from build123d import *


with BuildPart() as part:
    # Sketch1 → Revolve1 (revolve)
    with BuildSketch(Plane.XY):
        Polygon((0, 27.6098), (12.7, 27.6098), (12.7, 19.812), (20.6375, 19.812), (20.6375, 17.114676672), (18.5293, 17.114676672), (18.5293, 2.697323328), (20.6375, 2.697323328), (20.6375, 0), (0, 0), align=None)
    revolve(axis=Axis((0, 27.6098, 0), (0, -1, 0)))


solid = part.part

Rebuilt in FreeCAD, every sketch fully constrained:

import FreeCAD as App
import Part
import Sketcher
from FreeCAD import Vector
Q = App.Units.Quantity

doc = App.newDocument("Part")
body = doc.addObject("PartDesign::Body", "Body")

# Sketch on XY plane
sketch1 = body.newObject("Sketcher::SketchObject", "Sketch")
sketch1.AttachmentSupport = (doc.getObject("XY_Plane"), [""])
sketch1.MapMode = "FlatFace"
sketch1.addGeometry([
    Part.LineSegment(Vector(12.7, 27.6, 0), Vector(0, 27.6, 0)),  # 0
    Part.LineSegment(Vector(0, 27.6, 0), Vector(0, 0, 0)),  # 1
    Part.LineSegment(Vector(0, 0, 0), Vector(20.6, 0, 0)),  # 2
    Part.LineSegment(Vector(20.6, 0, 0), Vector(20.6, 2.7, 0)),  # 3
    Part.LineSegment(Vector(20.6, 2.7, 0), Vector(18.5, 2.7, 0)),  # 4
    Part.LineSegment(Vector(18.5, 2.7, 0), Vector(18.5, 17.1, 0)),  # 5
    Part.LineSegment(Vector(18.5, 17.1, 0), Vector(20.6, 17.1, 0)),  # 6
    Part.LineSegment(Vector(20.6, 17.1, 0), Vector(20.6, 19.8, 0)),  # 7
    Part.LineSegment(Vector(20.6, 19.8, 0), Vector(12.7, 19.8, 0)),  # 8
    Part.LineSegment(Vector(12.7, 19.8, 0), Vector(12.7, 27.6, 0)),  # 9
], False)
sketch1.addConstraint([
    Sketcher.Constraint("Coincident", 0, 2, 1, 1),
    Sketcher.Constraint("Coincident", 1, 2, 2, 1),
    Sketcher.Constraint("Coincident", 2, 2, 3, 1),
    Sketcher.Constraint("Coincident", 3, 2, 4, 1),
    Sketcher.Constraint("Coincident", 4, 2, 5, 1),
    Sketcher.Constraint("Coincident", 5, 2, 6, 1),
    Sketcher.Constraint("Coincident", 6, 2, 7, 1),
    Sketcher.Constraint("Coincident", 7, 2, 8, 1),
    Sketcher.Constraint("Coincident", 8, 2, 9, 1),
    Sketcher.Constraint("Coincident", 9, 2, 0, 1),
    Sketcher.Constraint("Horizontal", 0),
    Sketcher.Constraint("Vertical", 1),
    Sketcher.Constraint("Horizontal", 2),
    Sketcher.Constraint("Vertical", 3),
    Sketcher.Constraint("Horizontal", 4),
    Sketcher.Constraint("Vertical", 5),
    Sketcher.Constraint("Horizontal", 6),
    Sketcher.Constraint("Vertical", 7),
    Sketcher.Constraint("Horizontal", 8),
    Sketcher.Constraint("Vertical", 9),
    Sketcher.Constraint("Coincident", 1, 2, -1, 1),
    Sketcher.Constraint("Vertical", 3, 2, 6, 2),
    Sketcher.Constraint("Equal", 3, 7),
    Sketcher.Constraint("DistanceX", 0, 2, 0, 1, Q("0.5 in")),
    Sketcher.Constraint("DistanceX", 2, 1, 2, 2, Q("0.8125 in")),
    Sketcher.Constraint("DistanceX", 4, 2, 4, 1, Q("0.083 in")),
    Sketcher.Constraint("DistanceY", 1, 2, 1, 1, Q("1.087 in")),
    Sketcher.Constraint("DistanceY", 9, 1, 9, 2, Q("0.307 in")),
    Sketcher.Constraint("DistanceY", 3, 1, 3, 2, Q("2.697323 mm")),
])
revolution = body.newObject("PartDesign::Revolution", "Revolution")
revolution.Profile = sketch1
revolution.ReferenceAxis = (sketch1, ["V_Axis"])
revolution.Angle = 360

doc.recompute()
